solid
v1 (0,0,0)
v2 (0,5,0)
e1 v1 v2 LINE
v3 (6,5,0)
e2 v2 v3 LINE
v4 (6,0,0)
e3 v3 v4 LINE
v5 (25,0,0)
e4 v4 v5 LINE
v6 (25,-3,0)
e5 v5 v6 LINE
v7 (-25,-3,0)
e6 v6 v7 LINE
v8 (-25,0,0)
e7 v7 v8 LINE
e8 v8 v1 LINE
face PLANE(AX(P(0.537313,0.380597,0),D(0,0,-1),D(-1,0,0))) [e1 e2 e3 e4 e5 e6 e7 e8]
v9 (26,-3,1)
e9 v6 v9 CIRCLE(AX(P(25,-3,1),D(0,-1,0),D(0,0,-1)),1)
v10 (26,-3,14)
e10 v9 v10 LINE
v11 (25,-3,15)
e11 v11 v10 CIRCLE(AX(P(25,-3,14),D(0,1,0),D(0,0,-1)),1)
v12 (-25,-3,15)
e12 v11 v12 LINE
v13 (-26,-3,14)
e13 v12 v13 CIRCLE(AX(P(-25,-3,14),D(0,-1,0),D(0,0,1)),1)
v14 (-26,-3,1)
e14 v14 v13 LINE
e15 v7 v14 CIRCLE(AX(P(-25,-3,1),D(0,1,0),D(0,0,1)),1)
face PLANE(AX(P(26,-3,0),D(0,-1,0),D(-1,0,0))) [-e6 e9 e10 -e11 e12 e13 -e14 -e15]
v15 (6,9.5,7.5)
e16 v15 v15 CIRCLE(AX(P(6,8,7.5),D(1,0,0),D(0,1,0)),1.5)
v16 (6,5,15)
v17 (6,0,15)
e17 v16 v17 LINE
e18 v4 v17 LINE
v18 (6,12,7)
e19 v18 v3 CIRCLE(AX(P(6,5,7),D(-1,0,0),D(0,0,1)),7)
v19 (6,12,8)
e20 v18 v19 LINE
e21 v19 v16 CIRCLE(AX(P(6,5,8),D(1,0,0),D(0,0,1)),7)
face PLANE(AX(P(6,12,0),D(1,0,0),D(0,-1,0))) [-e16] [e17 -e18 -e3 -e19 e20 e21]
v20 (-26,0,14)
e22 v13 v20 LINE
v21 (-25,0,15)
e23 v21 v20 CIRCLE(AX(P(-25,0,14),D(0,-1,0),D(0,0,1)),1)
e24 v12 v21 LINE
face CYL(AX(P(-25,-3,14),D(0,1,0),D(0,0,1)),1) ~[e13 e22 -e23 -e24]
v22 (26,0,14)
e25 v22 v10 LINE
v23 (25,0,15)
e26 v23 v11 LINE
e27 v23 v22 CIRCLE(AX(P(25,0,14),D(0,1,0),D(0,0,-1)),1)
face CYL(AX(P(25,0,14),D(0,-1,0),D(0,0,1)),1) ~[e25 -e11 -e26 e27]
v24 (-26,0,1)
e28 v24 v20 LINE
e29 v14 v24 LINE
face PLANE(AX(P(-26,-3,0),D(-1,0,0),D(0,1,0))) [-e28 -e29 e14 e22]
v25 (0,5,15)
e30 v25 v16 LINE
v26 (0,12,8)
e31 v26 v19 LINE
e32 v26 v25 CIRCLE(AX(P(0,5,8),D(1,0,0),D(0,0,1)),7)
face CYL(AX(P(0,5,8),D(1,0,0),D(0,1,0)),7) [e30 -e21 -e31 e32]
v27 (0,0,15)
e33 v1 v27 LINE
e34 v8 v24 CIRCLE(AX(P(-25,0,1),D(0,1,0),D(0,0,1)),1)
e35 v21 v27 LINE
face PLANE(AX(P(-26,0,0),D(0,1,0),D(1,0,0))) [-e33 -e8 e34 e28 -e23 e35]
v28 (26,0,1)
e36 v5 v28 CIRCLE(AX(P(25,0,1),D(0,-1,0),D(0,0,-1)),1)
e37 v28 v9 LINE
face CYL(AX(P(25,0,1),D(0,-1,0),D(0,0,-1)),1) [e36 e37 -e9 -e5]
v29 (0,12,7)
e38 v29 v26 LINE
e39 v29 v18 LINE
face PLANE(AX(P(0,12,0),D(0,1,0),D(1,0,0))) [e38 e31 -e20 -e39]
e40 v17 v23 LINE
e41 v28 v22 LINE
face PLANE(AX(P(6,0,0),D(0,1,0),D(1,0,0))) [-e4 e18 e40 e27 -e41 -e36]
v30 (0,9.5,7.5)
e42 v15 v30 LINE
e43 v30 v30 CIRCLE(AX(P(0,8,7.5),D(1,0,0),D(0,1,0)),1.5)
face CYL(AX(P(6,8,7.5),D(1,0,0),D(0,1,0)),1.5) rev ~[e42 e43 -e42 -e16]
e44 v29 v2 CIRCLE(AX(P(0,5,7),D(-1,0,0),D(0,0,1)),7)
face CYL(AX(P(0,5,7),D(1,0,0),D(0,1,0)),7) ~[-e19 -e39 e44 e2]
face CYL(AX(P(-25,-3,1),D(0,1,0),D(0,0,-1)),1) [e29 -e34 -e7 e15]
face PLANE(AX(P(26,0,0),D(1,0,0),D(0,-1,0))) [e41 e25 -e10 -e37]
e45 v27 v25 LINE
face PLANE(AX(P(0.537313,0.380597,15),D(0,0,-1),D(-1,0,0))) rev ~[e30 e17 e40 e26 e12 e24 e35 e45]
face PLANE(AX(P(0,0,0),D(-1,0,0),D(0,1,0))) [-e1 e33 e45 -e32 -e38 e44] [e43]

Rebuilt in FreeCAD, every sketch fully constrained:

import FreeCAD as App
import Part
import Sketcher
from FreeCAD import Vector
Q = App.Units.Quantity


def edges_at(feature, points):
    """Names of the edges that pass closest to the given points."""
    edges = feature.Shape.Edges
    near = lambda p: min(range(len(edges)), key=lambda i: edges[i].distToShape(Part.Vertex(*p))[0])
    return sorted({f"Edge{near(p) + 1}" for p in points})


def add_polygon(sketch, points):
    """Adds a closed chain of lines whose ends are joined by coincident constraints."""
    first, n = sketch.GeometryCount, len(points)
    for a, b in zip(points, points[1:] + points[:1]):
        sketch.addGeometry(Part.LineSegment(App.Vector(*a, 0), App.Vector(*b, 0)), False)
    for i in range(n):
        sketch.addConstraint(Sketcher.Constraint("Coincident", first + i, 2, first + (i + 1) % n, 1))

doc = App.newDocument("Part")
params = doc.addObject("Spreadsheet::Sheet", "Params")
for row, (alias, value) in enumerate([
    ("sketch1_width", "26 mm"),
    ("sketch1_width2", "20 mm"),
    ("sketch1_height", "3 mm"),
    ("sketch1_height2", "12 mm"),
    ("pad1_length", "15 mm"),
    ("fillet_radius", "7 mm"),
    ("fillet2_radius", "1 mm"),
    ("sketch2_diameter", "3 mm"),
], start=1):
    params.set(f"A{row}", alias)
    params.set(f"B{row}", "=" + value)
    params.setAlias(f"B{row}", alias)

body = doc.addObject("PartDesign::Body", "Body")

sketch1 = body.newObject("Sketcher::SketchObject", "Sketch")
sketch1.AttachmentSupport = (doc.getObject("XY_Plane"), [""])
sketch1.MapMode = "FlatFace"
add_polygon(sketch1, [(0, 0), (-26, 0), (-26, -3), (26, -3), (26, 0), (6, 0), (6, 12), (0, 12)])
sketch1.addConstraint(Sketcher.Constraint("Horizontal", 0))
sketch1.addConstraint(Sketcher.Constraint("Vertical", 1))
sketch1.addConstraint(Sketcher.Constraint("Horizontal", 2))
sketch1.addConstraint(Sketcher.Constraint("Vertical", 3))
sketch1.addConstraint(Sketcher.Constraint("Horizontal", 4))
sketch1.addConstraint(Sketcher.Constraint("Vertical", 5))
sketch1.addConstraint(Sketcher.Constraint("Horizontal", 6))
sketch1.addConstraint(Sketcher.Constraint("Vertical", 7))
sketch1.addConstraint(Sketcher.Constraint("Coincident", 7, 2, -1, 1))
sketch1.addConstraint(Sketcher.Constraint("Symmetric", 0, 2, 3, 2, -1, 1))
sketch1.addConstraint(Sketcher.Constraint("DistanceX", 0, 2, 0, 1, Q("26 mm")))
sketch1.addConstraint(Sketcher.Constraint("DistanceX", 4, 2, 4, 1, Q("20 mm")))
sketch1.addConstraint(Sketcher.Constraint("DistanceY", 1, 2, 1, 1, Q("3 mm")))
sketch1.addConstraint(Sketcher.Constraint("DistanceY", 5, 1, 5, 2, Q("12 mm")))
sketch1.setExpression("Constraints[18]", "Params.sketch1_width")
sketch1.setExpression("Constraints[19]", "Params.sketch1_width2")
sketch1.setExpression("Constraints[20]", "Params.sketch1_height")
sketch1.setExpression("Constraints[21]", "Params.sketch1_height2")
pad1 = body.newObject("PartDesign::Pad", "Pad")
pad1.Profile = sketch1
pad1.setExpression("Length", "Params.pad1_length")
doc.recompute()

fillet = body.newObject("PartDesign::Fillet", "Fillet")
fillet.Base = (pad1, edges_at(pad1, [(3, 12, 0), (3, 12, 15)]))
fillet.setExpression("Radius", "Params.fillet_radius")
doc.recompute()

fillet2 = body.newObject("PartDesign::Fillet", "Fillet001")
fillet2.Base = (fillet, edges_at(fillet, [
    (26, -1.5, 0),
    (26, -1.5, 15),
    (-26, -1.5, 0),
    (-26, -1.5, 15),
]))
fillet2.setExpression("Radius", "Params.fillet2_radius")

sketch2 = body.newObject("Sketcher::SketchObject", "Sketch001")
sketch2.AttachmentSupport = (doc.getObject("YZ_Plane"), [""])
sketch2.MapMode = "FlatFace"
sketch2.AttachmentOffset = App.Placement(Vector(0, 0, 6), App.Rotation())
sketch2.addGeometry(Part.Circle(Vector(8, 7.5, 0), Vector(0, 0, 1), 1.5), False)
sketch2.addConstraint(Sketcher.Constraint("Diameter", 0, Q("3 mm")))
sketch2.addConstraint(Sketcher.Constraint("DistanceX", -1, 1, 0, 3, Q("8 mm")))
sketch2.addConstraint(Sketcher.Constraint("DistanceY", -1, 1, 0, 3, Q("7.5 mm")))
sketch2.setExpression("Constraints[0]", "Params.sketch2_diameter")
pocket1 = body.newObject("PartDesign::Pocket", "Pocket")
pocket1.Profile = sketch2
pocket1.Type = "ThroughAll"

doc.recompute()
